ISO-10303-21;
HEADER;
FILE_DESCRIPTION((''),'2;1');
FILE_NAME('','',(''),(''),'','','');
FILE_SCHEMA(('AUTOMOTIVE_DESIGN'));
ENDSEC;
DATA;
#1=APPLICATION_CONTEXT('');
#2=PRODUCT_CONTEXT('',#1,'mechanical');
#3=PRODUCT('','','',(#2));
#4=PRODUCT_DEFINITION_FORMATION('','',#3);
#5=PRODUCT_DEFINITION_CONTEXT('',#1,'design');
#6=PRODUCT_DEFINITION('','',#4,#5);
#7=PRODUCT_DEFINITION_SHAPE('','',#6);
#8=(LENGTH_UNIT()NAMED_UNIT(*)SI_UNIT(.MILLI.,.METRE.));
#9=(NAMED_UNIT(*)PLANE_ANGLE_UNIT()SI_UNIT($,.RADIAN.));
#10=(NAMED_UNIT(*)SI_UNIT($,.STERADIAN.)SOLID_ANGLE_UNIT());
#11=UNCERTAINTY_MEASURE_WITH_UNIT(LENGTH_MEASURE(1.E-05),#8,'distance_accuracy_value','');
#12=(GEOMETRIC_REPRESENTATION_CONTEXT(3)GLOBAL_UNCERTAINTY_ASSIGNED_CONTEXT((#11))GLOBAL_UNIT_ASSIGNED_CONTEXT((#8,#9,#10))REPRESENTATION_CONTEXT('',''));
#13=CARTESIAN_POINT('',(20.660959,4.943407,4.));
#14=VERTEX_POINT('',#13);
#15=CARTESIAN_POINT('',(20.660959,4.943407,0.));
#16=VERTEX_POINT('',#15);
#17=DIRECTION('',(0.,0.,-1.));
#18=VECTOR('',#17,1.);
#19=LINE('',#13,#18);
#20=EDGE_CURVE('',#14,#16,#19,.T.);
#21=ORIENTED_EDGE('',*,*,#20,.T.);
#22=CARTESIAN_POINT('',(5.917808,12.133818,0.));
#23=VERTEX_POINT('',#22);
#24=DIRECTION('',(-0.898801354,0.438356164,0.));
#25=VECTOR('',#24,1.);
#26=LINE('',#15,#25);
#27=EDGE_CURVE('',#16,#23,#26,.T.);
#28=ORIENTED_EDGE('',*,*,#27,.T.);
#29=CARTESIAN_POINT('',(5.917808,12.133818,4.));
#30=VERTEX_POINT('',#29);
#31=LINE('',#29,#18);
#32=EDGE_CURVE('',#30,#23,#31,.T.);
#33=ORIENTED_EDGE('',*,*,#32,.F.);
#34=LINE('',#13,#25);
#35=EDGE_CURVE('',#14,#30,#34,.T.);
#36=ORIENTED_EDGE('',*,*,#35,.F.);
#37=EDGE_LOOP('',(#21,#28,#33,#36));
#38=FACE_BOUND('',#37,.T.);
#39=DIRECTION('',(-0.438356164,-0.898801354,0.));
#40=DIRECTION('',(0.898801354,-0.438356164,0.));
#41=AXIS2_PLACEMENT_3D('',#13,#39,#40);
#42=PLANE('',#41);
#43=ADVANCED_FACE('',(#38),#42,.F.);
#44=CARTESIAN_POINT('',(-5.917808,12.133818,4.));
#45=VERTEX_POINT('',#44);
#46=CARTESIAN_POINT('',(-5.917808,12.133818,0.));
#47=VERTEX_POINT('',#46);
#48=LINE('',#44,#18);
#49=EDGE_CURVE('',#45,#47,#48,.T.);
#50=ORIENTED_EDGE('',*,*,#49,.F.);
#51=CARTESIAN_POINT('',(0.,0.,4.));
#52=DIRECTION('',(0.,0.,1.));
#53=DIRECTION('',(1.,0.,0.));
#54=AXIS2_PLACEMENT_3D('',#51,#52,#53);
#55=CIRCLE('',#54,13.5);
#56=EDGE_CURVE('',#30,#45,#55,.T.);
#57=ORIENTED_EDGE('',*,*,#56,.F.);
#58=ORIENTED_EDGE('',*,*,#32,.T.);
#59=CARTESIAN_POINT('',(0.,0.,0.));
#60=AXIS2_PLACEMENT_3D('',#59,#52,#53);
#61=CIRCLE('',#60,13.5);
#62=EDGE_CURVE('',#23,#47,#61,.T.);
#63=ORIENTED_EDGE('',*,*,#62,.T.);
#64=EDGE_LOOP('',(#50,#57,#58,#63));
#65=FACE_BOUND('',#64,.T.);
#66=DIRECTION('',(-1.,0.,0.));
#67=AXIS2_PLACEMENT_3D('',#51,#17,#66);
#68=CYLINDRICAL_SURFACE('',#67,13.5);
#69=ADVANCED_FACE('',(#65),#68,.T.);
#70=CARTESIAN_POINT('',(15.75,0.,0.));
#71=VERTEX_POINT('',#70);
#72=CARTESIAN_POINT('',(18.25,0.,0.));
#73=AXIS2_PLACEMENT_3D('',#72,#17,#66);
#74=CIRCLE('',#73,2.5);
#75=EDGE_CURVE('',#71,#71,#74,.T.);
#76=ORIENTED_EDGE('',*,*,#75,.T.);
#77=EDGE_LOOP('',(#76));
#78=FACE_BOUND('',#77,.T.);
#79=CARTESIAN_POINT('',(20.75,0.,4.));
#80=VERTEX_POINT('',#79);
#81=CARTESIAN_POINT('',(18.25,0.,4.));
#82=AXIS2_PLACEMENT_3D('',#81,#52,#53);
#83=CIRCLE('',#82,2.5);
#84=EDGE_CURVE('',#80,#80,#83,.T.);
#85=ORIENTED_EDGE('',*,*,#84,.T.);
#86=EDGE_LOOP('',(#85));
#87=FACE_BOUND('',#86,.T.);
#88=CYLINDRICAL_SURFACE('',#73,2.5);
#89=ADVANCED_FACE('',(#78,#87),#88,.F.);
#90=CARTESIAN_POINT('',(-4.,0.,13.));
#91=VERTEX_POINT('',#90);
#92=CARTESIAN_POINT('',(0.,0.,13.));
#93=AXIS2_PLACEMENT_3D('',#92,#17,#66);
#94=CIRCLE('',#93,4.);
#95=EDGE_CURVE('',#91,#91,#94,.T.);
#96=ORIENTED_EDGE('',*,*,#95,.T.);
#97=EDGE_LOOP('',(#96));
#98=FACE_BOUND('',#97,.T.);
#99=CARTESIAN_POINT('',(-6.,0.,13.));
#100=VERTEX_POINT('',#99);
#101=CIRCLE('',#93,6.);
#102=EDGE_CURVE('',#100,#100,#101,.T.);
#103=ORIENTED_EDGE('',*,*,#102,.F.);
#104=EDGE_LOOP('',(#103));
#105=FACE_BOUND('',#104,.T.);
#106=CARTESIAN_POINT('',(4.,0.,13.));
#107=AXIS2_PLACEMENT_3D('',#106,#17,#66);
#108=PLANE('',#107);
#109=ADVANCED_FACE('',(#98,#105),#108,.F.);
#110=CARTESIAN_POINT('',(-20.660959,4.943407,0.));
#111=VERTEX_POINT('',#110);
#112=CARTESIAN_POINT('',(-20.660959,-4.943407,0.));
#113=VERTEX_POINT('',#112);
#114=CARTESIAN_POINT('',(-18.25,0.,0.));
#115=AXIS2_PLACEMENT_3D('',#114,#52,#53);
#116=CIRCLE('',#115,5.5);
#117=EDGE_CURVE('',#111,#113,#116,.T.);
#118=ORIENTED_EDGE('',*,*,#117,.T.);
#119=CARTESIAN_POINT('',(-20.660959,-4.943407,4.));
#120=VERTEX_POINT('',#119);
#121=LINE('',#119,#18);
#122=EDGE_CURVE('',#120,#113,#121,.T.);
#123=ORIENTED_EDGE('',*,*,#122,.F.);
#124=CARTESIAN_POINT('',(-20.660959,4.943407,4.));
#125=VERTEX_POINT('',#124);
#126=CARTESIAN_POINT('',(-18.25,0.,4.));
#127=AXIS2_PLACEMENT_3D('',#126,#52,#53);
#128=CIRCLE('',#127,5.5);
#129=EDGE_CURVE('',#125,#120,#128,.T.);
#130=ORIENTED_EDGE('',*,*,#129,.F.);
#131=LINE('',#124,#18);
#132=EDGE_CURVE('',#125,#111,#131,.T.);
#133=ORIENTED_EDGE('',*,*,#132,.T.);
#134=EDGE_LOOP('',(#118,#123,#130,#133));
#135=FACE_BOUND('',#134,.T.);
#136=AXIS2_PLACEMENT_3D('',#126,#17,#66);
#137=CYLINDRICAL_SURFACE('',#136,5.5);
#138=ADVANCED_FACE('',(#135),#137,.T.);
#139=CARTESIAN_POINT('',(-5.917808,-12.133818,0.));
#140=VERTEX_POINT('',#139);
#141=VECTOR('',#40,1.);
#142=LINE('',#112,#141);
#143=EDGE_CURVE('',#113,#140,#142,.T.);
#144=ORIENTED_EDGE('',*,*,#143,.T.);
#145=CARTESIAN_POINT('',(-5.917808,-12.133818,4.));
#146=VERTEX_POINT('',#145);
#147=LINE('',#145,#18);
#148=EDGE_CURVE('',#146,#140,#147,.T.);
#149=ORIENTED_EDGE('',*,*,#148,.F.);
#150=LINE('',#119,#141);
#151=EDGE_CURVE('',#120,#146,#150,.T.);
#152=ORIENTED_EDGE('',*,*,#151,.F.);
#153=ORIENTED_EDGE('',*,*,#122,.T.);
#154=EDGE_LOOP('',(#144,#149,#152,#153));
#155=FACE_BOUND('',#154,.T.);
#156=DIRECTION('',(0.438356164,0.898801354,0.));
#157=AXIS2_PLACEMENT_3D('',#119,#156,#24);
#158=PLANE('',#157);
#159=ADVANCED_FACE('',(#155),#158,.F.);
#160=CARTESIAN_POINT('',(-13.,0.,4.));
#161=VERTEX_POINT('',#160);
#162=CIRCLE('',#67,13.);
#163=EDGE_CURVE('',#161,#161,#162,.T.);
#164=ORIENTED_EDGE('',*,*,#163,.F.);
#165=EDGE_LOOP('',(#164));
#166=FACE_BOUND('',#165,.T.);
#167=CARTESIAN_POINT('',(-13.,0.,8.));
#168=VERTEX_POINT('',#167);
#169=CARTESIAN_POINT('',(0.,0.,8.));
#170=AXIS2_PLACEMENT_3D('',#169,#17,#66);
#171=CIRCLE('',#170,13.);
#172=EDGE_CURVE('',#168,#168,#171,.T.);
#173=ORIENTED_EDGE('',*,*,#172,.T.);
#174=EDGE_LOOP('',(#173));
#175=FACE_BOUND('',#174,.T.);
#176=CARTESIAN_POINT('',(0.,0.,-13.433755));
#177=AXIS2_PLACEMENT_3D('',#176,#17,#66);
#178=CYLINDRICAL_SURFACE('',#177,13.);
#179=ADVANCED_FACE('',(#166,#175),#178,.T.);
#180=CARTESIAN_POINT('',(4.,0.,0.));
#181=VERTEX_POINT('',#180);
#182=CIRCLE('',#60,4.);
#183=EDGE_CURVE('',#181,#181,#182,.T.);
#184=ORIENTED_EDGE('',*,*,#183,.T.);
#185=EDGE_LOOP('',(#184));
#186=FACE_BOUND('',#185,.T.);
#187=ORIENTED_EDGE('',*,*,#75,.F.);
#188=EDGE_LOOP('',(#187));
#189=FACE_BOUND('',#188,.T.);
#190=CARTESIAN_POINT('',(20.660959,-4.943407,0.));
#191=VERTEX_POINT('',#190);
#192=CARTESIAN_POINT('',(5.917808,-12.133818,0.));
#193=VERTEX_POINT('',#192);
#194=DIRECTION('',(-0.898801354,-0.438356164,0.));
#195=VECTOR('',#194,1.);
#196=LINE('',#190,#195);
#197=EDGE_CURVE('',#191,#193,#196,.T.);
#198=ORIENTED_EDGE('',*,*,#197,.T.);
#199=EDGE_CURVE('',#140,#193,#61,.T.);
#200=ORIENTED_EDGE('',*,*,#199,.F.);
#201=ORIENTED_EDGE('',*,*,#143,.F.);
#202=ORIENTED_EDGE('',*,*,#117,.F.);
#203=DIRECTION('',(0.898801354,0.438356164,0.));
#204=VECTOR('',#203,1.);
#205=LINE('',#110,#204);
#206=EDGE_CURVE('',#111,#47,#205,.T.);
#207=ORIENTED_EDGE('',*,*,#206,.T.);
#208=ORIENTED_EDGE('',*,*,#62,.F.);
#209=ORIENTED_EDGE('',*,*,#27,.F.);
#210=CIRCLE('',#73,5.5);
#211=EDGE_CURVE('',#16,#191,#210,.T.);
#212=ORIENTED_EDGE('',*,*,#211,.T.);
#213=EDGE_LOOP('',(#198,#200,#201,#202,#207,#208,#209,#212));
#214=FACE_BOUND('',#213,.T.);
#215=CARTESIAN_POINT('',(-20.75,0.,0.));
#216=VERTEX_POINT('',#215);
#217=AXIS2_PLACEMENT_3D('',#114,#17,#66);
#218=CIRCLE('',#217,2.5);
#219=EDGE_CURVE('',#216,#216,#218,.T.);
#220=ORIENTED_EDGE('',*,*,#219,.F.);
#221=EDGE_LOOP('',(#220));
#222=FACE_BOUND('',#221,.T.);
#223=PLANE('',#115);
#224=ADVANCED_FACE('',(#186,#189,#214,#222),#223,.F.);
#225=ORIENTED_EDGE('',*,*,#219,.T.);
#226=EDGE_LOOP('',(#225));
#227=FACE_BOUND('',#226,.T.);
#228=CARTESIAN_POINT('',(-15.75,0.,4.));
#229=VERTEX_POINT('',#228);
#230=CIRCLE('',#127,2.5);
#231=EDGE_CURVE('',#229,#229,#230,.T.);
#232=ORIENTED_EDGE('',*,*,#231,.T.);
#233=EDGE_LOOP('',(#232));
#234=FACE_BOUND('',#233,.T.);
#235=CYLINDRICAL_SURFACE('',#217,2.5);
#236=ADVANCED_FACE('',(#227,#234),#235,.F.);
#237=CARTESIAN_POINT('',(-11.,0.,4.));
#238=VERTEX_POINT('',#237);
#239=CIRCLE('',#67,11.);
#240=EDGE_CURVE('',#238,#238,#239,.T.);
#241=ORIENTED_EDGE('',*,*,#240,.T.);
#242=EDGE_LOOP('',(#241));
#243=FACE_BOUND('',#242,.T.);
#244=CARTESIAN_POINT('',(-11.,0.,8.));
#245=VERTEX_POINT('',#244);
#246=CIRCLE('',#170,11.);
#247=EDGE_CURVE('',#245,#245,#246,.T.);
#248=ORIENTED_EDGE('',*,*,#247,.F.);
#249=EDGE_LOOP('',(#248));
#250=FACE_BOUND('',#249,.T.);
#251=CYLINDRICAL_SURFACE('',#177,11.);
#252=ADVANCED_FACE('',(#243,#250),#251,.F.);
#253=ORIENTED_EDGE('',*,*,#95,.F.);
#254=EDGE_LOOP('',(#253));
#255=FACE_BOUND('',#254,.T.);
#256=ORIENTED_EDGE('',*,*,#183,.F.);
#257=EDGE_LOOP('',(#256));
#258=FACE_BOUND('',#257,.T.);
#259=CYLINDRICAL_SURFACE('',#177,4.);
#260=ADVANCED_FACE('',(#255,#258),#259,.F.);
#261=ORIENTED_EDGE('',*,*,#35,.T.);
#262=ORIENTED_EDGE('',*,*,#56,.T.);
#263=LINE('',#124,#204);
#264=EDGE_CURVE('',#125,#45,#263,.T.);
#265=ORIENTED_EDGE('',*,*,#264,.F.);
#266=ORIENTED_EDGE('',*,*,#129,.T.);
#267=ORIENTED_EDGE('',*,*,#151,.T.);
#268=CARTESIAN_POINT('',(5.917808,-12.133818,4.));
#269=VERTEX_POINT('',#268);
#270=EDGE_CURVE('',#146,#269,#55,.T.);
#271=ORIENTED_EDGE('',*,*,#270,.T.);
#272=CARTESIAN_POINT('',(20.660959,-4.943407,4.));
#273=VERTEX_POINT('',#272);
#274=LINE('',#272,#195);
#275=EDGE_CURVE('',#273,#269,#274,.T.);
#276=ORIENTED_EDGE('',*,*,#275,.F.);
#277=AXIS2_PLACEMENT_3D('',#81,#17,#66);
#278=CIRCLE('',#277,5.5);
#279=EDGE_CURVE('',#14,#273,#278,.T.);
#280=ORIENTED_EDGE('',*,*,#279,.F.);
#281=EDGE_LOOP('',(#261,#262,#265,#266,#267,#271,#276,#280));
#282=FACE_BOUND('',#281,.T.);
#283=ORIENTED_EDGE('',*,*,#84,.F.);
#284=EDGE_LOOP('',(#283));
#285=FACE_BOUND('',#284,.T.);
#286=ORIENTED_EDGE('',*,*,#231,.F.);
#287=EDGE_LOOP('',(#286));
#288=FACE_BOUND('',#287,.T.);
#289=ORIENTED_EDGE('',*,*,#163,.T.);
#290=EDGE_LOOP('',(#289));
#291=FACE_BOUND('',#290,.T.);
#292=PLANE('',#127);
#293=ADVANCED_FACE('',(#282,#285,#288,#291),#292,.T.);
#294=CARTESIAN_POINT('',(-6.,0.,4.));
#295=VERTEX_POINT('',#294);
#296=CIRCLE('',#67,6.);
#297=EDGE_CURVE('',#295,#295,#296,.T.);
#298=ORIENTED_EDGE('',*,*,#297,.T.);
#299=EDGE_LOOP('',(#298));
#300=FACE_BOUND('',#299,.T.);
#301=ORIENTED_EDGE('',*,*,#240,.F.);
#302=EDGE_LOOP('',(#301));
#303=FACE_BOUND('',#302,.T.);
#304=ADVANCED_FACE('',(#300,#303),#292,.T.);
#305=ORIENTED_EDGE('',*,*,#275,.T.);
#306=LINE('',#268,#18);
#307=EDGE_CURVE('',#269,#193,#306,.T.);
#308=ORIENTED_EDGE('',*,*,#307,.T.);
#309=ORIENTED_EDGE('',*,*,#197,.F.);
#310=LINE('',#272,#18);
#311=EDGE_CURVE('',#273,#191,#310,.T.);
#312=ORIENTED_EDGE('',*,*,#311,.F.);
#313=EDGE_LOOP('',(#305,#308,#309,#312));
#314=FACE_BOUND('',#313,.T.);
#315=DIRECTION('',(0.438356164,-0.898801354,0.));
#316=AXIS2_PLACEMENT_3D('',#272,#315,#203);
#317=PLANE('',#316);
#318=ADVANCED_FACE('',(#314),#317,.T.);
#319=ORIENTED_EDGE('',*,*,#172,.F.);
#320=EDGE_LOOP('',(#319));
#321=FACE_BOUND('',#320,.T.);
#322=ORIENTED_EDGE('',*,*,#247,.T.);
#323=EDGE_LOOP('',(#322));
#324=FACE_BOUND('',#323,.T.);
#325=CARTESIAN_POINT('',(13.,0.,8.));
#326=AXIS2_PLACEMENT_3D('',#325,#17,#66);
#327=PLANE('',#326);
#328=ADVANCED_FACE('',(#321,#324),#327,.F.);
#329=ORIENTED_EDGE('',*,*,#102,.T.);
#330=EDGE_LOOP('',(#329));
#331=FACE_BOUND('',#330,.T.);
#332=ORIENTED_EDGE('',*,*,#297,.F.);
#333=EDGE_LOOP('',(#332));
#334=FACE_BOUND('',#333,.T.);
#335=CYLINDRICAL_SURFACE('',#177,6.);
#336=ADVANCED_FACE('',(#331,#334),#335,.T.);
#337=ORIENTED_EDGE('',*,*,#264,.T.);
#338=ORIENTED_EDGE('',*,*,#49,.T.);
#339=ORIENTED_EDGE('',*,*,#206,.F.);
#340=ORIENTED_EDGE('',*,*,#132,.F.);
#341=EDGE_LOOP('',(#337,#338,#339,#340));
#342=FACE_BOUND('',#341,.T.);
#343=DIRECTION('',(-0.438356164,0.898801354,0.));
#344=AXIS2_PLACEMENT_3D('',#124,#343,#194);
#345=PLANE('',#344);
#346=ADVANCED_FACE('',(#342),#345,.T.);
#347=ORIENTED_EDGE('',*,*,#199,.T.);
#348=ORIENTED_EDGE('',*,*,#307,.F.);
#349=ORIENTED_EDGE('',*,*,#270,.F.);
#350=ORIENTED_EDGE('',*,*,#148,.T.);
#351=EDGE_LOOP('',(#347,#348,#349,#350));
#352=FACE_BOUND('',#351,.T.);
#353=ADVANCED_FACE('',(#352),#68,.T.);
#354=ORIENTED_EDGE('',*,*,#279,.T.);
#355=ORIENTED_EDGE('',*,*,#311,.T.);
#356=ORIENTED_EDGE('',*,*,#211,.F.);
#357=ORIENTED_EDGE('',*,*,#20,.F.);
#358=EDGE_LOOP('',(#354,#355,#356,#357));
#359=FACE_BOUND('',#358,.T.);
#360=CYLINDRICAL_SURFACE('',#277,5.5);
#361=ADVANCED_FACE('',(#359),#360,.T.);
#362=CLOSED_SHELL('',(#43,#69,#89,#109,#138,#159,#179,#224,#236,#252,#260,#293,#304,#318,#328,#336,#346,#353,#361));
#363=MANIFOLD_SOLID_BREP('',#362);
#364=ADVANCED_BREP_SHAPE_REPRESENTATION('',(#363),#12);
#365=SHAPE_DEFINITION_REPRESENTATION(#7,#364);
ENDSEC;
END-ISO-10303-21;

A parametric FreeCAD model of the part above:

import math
import FreeCAD as App
import Part
import Sketcher

V = App.Vector
Q = App.Units.Quantity


def add_polygon(sketch, points):
    """Adds a closed chain of lines whose ends are joined by coincident constraints."""
    first, n = sketch.GeometryCount, len(points)
    for a, b in zip(points, points[1:] + points[:1]):
        sketch.addGeometry(Part.LineSegment(App.Vector(*a, 0), App.Vector(*b, 0)), False)
    for i in range(n):
        sketch.addConstraint(Sketcher.Constraint("Coincident", first + i, 2, first + (i + 1) % n, 1))

doc = App.newDocument("Part")
params = doc.addObject("Spreadsheet::Sheet", "Params")
for row, (alias, value) in enumerate([
    ("sketch1_radius", "5.5 mm"),
    ("sketch1_radius2", "13.5 mm"),
    ("pad1_length", "4 mm"),
    ("sketch2_width", "2 mm"),
    ("sketch2_height", "9 mm"),
    ("sketch2_height2", "4 mm"),
    ("revolution_angle", "360 deg"),
    ("sketch3_diameter", "5 mm"),
    ("hole_diameter", "5 mm"),
    ("hole_depth", "10.1 mm"),
    ("sketch4_diameter", "8 mm"),
    ("hole2_diameter", "8 mm"),
    ("hole2_depth", "10.1 mm"),
], start=1):
    params.set(f"A{row}", alias)
    params.set(f"B{row}", "=" + value)
    params.setAlias(f"B{row}", alias)

body = doc.addObject("PartDesign::Body", "Body")

sketch1 = body.newObject("Sketcher::SketchObject", "Sketch")
sketch1.AttachmentSupport = (doc.getObject("XY_Plane"), [""])
sketch1.MapMode = "FlatFace"
sketch1.addGeometry([
    Part.LineSegment(V(-5.917808, 12.133818, 0), V(-20.660959, 4.943407, 0)),
    Part.ArcOfCircle(Part.Circle(V(-18.25, 0, 0), V(0, 0, 1), 5.5), math.radians(115.999045), math.radians(244.000955)),
    Part.LineSegment(V(-20.660959, -4.943407, 0), V(-5.917808, -12.133818, 0)),
    Part.ArcOfCircle(Part.Circle(V(0, 0, 0), V(0, 0, 1), 13.5), math.radians(-115.999045), math.radians(-64.000955)),
    Part.LineSegment(V(5.917808, -12.133818, 0), V(20.660959, -4.943407, 0)),
    Part.ArcOfCircle(Part.Circle(V(18.25, 0, 0), V(0, 0, 1), 5.5), math.radians(-64.000955), math.radians(64.000955)),
    Part.LineSegment(V(20.660959, 4.943407, 0), V(5.917808, 12.133818, 0)),
    Part.ArcOfCircle(Part.Circle(V(0, 0, 0), V(0, 0, 1), 13.5), math.radians(64.000955), math.radians(115.999045)),
], False)
sketch1.addConstraint([
    Sketcher.Constraint("Tangent", 0, 2, 1, 1),
    Sketcher.Constraint("Tangent", 1, 2, 2, 1),
    Sketcher.Constraint("Tangent", 2, 2, 3, 1),
    Sketcher.Constraint("Tangent", 3, 2, 4, 1),
    Sketcher.Constraint("Tangent", 4, 2, 5, 1),
    Sketcher.Constraint("Tangent", 5, 2, 6, 1),
    Sketcher.Constraint("Tangent", 6, 2, 7, 1),
    Sketcher.Constraint("Tangent", 7, 2, 0, 1),
    Sketcher.Constraint("Coincident", 3, 3, -1, 1),
    Sketcher.Constraint("Coincident", 7, 3, -1, 1),
    Sketcher.Constraint("Equal", 1, 5),
    Sketcher.Constraint("Equal", 3, 7),
    Sketcher.Constraint("Symmetric", 1, 3, 5, 3, -1, 1),
    Sketcher.Constraint("PointOnObject", 1, 3, -1),
    Sketcher.Constraint("Radius", 1, Q("5.5 mm")),
    Sketcher.Constraint("Radius", 3, Q("13.5 mm")),
    Sketcher.Constraint("DistanceX", 1, 3, 5, 3, Q("36.5 mm")),
])
sketch1.setExpression("Constraints[14]", "Params.sketch1_radius")
sketch1.setExpression("Constraints[15]", "Params.sketch1_radius2")
pad1 = body.newObject("PartDesign::Pad", "Pad")
pad1.Profile = sketch1
pad1.setExpression("Length", "Params.pad1_length")

sketch2 = body.newObject("Sketcher::SketchObject", "Sketch001")
sketch2.AttachmentSupport = (doc.getObject("XZ_Plane"), [""])
sketch2.MapMode = "FlatFace"
add_polygon(sketch2, [(4, 13), (6, 13), (6, 4), (4, 4)])
add_polygon(sketch2, [(11, 4), (11, 8), (13, 8), (13, 4)])
sketch2.addConstraint([
    Sketcher.Constraint("Horizontal", 0),
    Sketcher.Constraint("Vertical", 1),
    Sketcher.Constraint("Horizontal", 2),
    Sketcher.Constraint("Vertical", 3),
    Sketcher.Constraint("Vertical", 4),
    Sketcher.Constraint("Horizontal", 5),
    Sketcher.Constraint("Vertical", 6),
    Sketcher.Constraint("Horizontal", 7),
    Sketcher.Constraint("Horizontal", 2, 2, 6, 2),
    Sketcher.Constraint("Equal", 2, 5),
    Sketcher.Constraint("DistanceX", 0, 1, 0, 2, Q("2 mm")),
    Sketcher.Constraint("DistanceY", 1, 2, 1, 1, Q("9 mm")),
    Sketcher.Constraint("DistanceY", 4, 1, 4, 2, Q("4 mm")),
    Sketcher.Constraint("DistanceX", -1, 1, 0, 2, Q("6 mm")),
    Sketcher.Constraint("DistanceY", -1, 1, 0, 2, Q("13 mm")),
    Sketcher.Constraint("DistanceX", -1, 1, 4, 2, Q("11 mm")),
])
sketch2.setExpression("Constraints[18]", "Params.sketch2_width")
sketch2.setExpression("Constraints[19]", "Params.sketch2_height")
sketch2.setExpression("Constraints[20]", "Params.sketch2_height2")
revolution = body.newObject("PartDesign::Revolution", "Revolution")
revolution.Profile = sketch2
revolution.ReferenceAxis = (sketch2, ["V_Axis"])
revolution.setExpression("Angle", "Params.revolution_angle")

sketch3 = body.newObject("Sketcher::SketchObject", "Sketch002")
sketch3.AttachmentSupport = (doc.getObject("XY_Plane"), [""])
sketch3.MapMode = "FlatFace"
sketch3.addGeometry([
    Part.Circle(V(18.25, 0, 0), V(0, 0, 1), 2.5),
    Part.Circle(V(-18.25, 0, 0), V(0, 0, 1), 2.5),
], False)
sketch3.addConstraint([
    Sketcher.Constraint("Equal", 0, 1),
    Sketcher.Constraint("Symmetric", 0, 3, 1, 3, -1, 1),
    Sketcher.Constraint("PointOnObject", 0, 3, -1),
    Sketcher.Constraint("Diameter", 0, Q("5 mm")),
    Sketcher.Constraint("DistanceX", 1, 3, 0, 3, Q("36.5 mm")),
])
sketch3.setExpression("Constraints[3]", "Params.sketch3_diameter")
doc.recompute()
hole = body.newObject("PartDesign::Hole", "Hole")
hole.Profile = sketch3
hole.ThreadType = "None"
hole.setExpression("Diameter", "Params.hole_diameter")
hole.DepthType = "Dimension"
hole.setExpression("Depth", "Params.hole_depth")
hole.DrillPoint = "Angled"
hole.DrillPointAngle = 118
hole.Reversed = True

sketch4 = body.newObject("Sketcher::SketchObject", "Sketch003")
sketch4.AttachmentSupport = (doc.getObject("XY_Plane"), [""])
sketch4.MapMode = "FlatFace"
sketch4.AttachmentOffset = App.Placement(V(0, 0, 4), App.Rotation())
sketch4.addGeometry(Part.Circle(V(0, 0, 0), V(0, 0, 1), 4), False)
sketch4.addConstraint([
    Sketcher.Constraint("Coincident", 0, 3, -1, 1),
    Sketcher.Constraint("Diameter", 0, Q("8 mm")),
])
sketch4.setExpression("Constraints[1]", "Params.sketch4_diameter")
doc.recompute()
hole2 = body.newObject("PartDesign::Hole", "Hole001")
hole2.Profile = sketch4
hole2.ThreadType = "None"
hole2.setExpression("Diameter", "Params.hole2_diameter")
hole2.DepthType = "Dimension"
hole2.setExpression("Depth", "Params.hole2_depth")
hole2.DrillPoint = "Angled"
hole2.DrillPointAngle = 118

doc.recompute()
